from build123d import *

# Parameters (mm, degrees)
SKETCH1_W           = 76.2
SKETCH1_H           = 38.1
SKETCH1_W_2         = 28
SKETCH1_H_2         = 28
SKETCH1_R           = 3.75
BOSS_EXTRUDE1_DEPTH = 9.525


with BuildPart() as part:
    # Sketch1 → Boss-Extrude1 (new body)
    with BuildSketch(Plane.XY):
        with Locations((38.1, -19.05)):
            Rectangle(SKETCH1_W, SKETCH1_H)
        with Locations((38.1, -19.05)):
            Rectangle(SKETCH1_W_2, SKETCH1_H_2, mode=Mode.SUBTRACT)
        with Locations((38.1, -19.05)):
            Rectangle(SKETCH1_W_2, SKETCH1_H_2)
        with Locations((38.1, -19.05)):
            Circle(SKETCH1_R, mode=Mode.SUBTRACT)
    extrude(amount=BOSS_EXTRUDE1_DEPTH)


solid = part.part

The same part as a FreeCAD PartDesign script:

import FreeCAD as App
import Part
import Sketcher
Q = App.Units.Quantity

doc = App.newDocument("Part")
body = doc.addObject("PartDesign::Body", "Body")

sketch1 = doc.addObject("Sketcher::SketchObject", "Sketch")
body.addObject(sketch1)
sketch1.AttachmentSupport = (doc.XY_Plane, [""])
sketch1.MapMode = "FlatFace"
sketch1.addGeometry(Part.LineSegment(App.Vector(0, 0, 0), App.Vector(0, -38.1, 0)), False)
sketch1.addGeometry(Part.LineSegment(App.Vector(0, -38.1, 0), App.Vector(76.2, -38.1, 0)), False)
sketch1.addGeometry(Part.LineSegment(App.Vector(76.2, -38.1, 0), App.Vector(76.2, 0, 0)), False)
sketch1.addGeometry(Part.LineSegment(App.Vector(76.2, 0, 0), App.Vector(0, 0, 0)), False)
sketch1.addGeometry(Part.Circle(App.Vector(38.1, -19.1, 0), App.Vector(0, 0, 1), 3.8), False)
sketch1.addConstraint(Sketcher.Constraint("Coincident", 0, 2, 1, 1))
sketch1.addConstraint(Sketcher.Constraint("Coincident", 1, 2, 2, 1))
sketch1.addConstraint(Sketcher.Constraint("Coincident", 2, 2, 3, 1))
sketch1.addConstraint(Sketcher.Constraint("Coincident", 3, 2, 0, 1))
sketch1.addConstraint(Sketcher.Constraint("Vertical", 0))
sketch1.addConstraint(Sketcher.Constraint("Horizontal", 1))
sketch1.addConstraint(Sketcher.Constraint("Vertical", 2))
sketch1.addConstraint(Sketcher.Constraint("Horizontal", 3))
sketch1.addConstraint(Sketcher.Constraint("Coincident", 3, 2, -1, 1))
sketch1.addConstraint(Sketcher.Constraint("DistanceX", 1, 1, 1, 2, Q("3 in")))
sketch1.addConstraint(Sketcher.Constraint("DistanceY", 0, 2, 0, 1, Q("1.5 in")))
sketch1.addConstraint(Sketcher.Constraint("DistanceX", -1, 1, 4, 3, Q("1.5 in")))
sketch1.addConstraint(Sketcher.Constraint("Diameter", 4, 7.5))
sketch1.addConstraint(Sketcher.Constraint("DistanceY", 4, 3, -1, 1, Q("0.75 in")))
pad1 = doc.addObject("PartDesign::Pad", "Pad")
body.addObject(pad1)
pad1.Profile = sketch1
pad1.Length = Q("0.375 in")

doc.recompute()
